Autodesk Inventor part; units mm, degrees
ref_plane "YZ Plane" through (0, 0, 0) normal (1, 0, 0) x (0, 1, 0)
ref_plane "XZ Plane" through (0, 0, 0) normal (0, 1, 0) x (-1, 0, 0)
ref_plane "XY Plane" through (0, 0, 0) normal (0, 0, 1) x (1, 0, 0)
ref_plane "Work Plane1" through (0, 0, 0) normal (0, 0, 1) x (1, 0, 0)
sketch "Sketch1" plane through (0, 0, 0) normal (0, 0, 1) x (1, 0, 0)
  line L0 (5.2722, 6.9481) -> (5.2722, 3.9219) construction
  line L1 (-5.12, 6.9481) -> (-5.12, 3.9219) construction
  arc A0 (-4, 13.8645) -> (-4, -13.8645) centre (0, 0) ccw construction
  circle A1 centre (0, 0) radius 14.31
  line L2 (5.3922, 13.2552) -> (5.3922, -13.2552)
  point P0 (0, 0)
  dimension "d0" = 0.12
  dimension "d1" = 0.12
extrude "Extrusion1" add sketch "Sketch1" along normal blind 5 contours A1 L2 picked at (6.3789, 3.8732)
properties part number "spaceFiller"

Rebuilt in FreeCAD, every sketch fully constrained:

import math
import FreeCAD as App
import Part
import Sketcher
Q = App.Units.Quantity

doc = App.newDocument("Part")
body = doc.addObject("PartDesign::Body", "Body")

# Sketch on XY plane
sketch1 = doc.addObject("Sketcher::SketchObject", "Sketch")
body.addObject(sketch1)
sketch1.AttachmentSupport = (doc.XY_Plane, [""])
sketch1.MapMode = "FlatFace"
sketch1.addGeometry([
    Part.ArcOfCircle(Part.Circle(App.Vector(0, 0, 0), App.Vector(0, 0, 1), 14), math.radians(-68), math.radians(68)),
    Part.LineSegment(App.Vector(5, -13, 0), App.Vector(5, 13, 0)),
], False)
sketch1.addConstraint([
    Sketcher.Constraint("Coincident", 0, 1, 1, 1),
    Sketcher.Constraint("Coincident", 1, 2, 0, 2),
    Sketcher.Constraint("Vertical", 1),
    Sketcher.Constraint("Coincident", 0, 3, -1, 1),
    Sketcher.Constraint("Radius", 0, Q("14.31 mm")),
    Sketcher.Constraint("DistanceY", 1, 1, 1, 2, Q("26.5104 mm")),
])
pad1 = doc.addObject("PartDesign::Pad", "Pad")
body.addObject(pad1)
pad1.Profile = sketch1
pad1.Length = 5

doc.recompute()
